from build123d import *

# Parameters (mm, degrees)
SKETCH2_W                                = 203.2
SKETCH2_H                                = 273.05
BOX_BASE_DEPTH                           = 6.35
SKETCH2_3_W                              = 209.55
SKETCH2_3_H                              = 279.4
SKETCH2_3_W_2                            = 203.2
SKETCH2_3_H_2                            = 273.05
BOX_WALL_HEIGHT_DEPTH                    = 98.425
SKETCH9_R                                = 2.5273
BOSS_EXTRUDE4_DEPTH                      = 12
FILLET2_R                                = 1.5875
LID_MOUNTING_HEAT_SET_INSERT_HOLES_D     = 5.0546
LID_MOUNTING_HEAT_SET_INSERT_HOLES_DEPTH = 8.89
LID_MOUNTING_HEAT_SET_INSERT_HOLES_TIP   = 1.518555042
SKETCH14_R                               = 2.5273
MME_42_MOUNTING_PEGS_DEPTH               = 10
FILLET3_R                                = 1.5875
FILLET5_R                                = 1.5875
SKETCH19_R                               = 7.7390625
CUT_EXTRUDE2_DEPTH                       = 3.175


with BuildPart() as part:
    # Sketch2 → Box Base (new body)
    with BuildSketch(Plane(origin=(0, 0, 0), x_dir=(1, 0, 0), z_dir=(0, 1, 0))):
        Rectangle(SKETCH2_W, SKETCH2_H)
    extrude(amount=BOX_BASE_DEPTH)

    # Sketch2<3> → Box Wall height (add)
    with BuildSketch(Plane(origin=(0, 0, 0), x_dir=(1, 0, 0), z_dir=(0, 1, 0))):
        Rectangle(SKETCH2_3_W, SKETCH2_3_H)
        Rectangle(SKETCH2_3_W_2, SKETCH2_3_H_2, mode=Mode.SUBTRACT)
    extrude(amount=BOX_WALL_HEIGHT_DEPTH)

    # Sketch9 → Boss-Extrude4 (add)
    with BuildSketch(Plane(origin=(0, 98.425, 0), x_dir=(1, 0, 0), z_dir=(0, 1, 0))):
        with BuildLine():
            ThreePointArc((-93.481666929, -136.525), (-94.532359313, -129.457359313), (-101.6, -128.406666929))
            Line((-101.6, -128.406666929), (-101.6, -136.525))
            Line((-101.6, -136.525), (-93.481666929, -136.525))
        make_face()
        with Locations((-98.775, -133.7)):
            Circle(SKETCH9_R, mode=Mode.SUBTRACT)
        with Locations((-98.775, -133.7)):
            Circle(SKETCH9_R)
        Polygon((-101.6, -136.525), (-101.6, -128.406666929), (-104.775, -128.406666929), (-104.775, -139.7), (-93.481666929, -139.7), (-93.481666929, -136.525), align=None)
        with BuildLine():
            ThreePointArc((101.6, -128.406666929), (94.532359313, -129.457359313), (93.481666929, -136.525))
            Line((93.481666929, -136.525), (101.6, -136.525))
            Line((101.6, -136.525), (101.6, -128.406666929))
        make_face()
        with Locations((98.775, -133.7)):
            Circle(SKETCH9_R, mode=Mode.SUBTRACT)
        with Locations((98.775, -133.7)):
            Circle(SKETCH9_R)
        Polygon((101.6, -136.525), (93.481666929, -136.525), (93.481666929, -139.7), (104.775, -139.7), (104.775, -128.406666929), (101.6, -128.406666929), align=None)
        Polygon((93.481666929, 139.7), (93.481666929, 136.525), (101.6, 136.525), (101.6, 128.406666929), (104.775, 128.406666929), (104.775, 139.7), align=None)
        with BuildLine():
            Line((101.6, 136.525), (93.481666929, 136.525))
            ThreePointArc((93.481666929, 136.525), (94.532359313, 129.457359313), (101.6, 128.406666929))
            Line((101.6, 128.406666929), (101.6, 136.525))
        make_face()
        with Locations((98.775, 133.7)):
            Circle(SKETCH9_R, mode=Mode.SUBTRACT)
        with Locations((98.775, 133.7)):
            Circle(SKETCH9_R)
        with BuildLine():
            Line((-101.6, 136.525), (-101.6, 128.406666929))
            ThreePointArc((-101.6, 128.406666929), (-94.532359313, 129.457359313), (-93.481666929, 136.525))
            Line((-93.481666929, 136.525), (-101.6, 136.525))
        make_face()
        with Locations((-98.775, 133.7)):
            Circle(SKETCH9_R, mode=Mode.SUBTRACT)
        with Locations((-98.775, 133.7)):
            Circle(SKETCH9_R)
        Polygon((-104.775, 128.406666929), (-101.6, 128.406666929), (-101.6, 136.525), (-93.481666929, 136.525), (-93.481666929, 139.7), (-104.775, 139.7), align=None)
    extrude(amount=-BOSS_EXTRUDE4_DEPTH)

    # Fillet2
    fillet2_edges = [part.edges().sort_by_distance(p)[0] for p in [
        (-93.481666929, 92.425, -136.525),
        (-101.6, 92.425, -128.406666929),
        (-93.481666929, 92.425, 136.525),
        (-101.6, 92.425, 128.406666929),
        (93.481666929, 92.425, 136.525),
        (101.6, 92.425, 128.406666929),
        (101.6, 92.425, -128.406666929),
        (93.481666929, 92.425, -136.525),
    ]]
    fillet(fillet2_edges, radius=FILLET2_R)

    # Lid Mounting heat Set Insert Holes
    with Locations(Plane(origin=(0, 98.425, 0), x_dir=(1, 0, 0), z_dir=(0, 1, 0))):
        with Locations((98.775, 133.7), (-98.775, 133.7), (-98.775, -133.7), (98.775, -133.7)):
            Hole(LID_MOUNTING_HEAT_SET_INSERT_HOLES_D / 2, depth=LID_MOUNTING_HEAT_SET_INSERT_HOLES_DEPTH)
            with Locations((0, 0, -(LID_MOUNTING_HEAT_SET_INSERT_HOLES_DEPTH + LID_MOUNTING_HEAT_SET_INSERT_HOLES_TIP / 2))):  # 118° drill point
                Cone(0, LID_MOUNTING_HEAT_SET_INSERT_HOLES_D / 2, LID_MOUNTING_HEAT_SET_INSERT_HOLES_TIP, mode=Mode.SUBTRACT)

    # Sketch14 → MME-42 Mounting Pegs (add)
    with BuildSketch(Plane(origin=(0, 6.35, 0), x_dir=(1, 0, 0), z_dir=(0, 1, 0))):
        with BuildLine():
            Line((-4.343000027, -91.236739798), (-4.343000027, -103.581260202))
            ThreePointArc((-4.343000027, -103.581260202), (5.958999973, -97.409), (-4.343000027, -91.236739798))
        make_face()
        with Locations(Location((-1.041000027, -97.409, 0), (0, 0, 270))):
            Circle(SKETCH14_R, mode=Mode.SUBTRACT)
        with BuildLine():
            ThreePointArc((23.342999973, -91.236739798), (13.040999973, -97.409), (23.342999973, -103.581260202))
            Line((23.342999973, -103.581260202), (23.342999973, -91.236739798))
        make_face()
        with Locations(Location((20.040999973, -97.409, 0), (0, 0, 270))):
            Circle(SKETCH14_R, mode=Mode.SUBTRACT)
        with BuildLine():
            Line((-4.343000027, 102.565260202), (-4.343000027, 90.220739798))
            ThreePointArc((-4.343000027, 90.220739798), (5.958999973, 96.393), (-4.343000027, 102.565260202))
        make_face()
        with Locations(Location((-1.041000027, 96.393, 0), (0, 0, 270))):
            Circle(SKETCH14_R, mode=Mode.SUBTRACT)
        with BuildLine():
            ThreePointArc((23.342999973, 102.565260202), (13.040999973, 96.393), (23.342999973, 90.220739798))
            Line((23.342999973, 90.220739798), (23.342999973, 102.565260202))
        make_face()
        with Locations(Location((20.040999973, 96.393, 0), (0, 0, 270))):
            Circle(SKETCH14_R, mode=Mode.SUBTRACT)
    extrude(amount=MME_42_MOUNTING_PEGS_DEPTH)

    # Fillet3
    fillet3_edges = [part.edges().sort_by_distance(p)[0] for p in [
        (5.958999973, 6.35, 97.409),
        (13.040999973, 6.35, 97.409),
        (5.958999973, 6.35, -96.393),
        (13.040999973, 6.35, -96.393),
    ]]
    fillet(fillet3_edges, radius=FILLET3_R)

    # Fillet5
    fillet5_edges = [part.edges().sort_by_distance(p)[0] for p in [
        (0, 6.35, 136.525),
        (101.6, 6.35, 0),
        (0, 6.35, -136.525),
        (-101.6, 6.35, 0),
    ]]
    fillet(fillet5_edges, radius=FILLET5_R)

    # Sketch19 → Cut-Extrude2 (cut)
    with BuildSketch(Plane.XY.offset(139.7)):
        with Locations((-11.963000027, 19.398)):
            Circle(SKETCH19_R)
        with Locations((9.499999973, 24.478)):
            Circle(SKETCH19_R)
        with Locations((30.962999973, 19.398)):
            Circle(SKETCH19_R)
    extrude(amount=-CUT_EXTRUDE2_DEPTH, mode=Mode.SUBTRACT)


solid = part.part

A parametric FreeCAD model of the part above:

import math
import FreeCAD as App
import Part
import Sketcher
Q = App.Units.Quantity


def edges_at(feature, points):
    """Names of the edges that pass closest to the given points."""
    edges = feature.Shape.Edges
    near = lambda p: min(range(len(edges)), key=lambda i: edges[i].distToShape(Part.Vertex(*p))[0])
    return sorted({f"Edge{near(p) + 1}" for p in points})

doc = App.newDocument("Part")
body = doc.addObject("PartDesign::Body", "Body")

# Sketch on XZ plane
sketch1 = body.newObject("Sketcher::SketchObject", "Sketch")
sketch1.AttachmentSupport = (doc.getObject("XZ_Plane"), [""])
sketch1.MapMode = "FlatFace"
sketch1.addGeometry(Part.LineSegment(App.Vector(-101.6, -136.525, 0), App.Vector(-101.6, 136.525, 0)), False)
sketch1.addGeometry(Part.LineSegment(App.Vector(-101.6, 136.525, 0), App.Vector(101.6, 136.525, 0)), False)
sketch1.addGeometry(Part.LineSegment(App.Vector(101.6, 136.525, 0), App.Vector(101.6, -136.525, 0)), False)
sketch1.addGeometry(Part.LineSegment(App.Vector(101.6, -136.525, 0), App.Vector(-101.6, -136.525, 0)), False)
sketch1.addConstraint(Sketcher.Constraint("Coincident", 0, 2, 1, 1))
sketch1.addConstraint(Sketcher.Constraint("Coincident", 1, 2, 2, 1))
sketch1.addConstraint(Sketcher.Constraint("Coincident", 2, 2, 3, 1))
sketch1.addConstraint(Sketcher.Constraint("Coincident", 3, 2, 0, 1))
sketch1.addConstraint(Sketcher.Constraint("Vertical", 0))
sketch1.addConstraint(Sketcher.Constraint("Horizontal", 1))
sketch1.addConstraint(Sketcher.Constraint("Vertical", 2))
sketch1.addConstraint(Sketcher.Constraint("Horizontal", 3))
sketch1.addConstraint(Sketcher.Constraint("Symmetric", 0, 2, 2, 2, -1, 1))
sketch1.addConstraint(Sketcher.Constraint("DistanceX", 1, 1, 1, 2, Q("8 in")))
sketch1.addConstraint(Sketcher.Constraint("DistanceY", 0, 1, 0, 2, Q("10.75 in")))
pad1 = body.newObject("PartDesign::Pad", "Pad")
pad1.Profile = sketch1
pad1.Length = Q("0.25 in")
pad1.Reversed = True

# Sketch on XZ plane
sketch2 = body.newObject("Sketcher::SketchObject", "Sketch001")
sketch2.AttachmentSupport = (doc.getObject("XZ_Plane"), [""])
sketch2.MapMode = "FlatFace"
sketch2.addGeometry(Part.LineSegment(App.Vector(-104.775, -139.7, 0), App.Vector(-104.775, 139.7, 0)), False)
sketch2.addGeometry(Part.LineSegment(App.Vector(-104.775, 139.7, 0), App.Vector(104.775, 139.7, 0)), False)
sketch2.addGeometry(Part.LineSegment(App.Vector(104.775, 139.7, 0), App.Vector(104.775, -139.7, 0)), False)
sketch2.addGeometry(Part.LineSegment(App.Vector(104.775, -139.7, 0), App.Vector(-104.775, -139.7, 0)), False)
sketch2.addGeometry(Part.LineSegment(App.Vector(101.6, 136.525, 0), App.Vector(-101.6, 136.525, 0)), False)
sketch2.addGeometry(Part.LineSegment(App.Vector(-101.6, 136.525, 0), App.Vector(-101.6, -136.525, 0)), False)
sketch2.addGeometry(Part.LineSegment(App.Vector(-101.6, -136.525, 0), App.Vector(101.6, -136.525, 0)), False)
sketch2.addGeometry(Part.LineSegment(App.Vector(101.6, -136.525, 0), App.Vector(101.6, 136.525, 0)), False)
sketch2.addConstraint(Sketcher.Constraint("Coincident", 0, 2, 1, 1))
sketch2.addConstraint(Sketcher.Constraint("Coincident", 1, 2, 2, 1))
sketch2.addConstraint(Sketcher.Constraint("Coincident", 2, 2, 3, 1))
sketch2.addConstraint(Sketcher.Constraint("Coincident", 3, 2, 0, 1))
sketch2.addConstraint(Sketcher.Constraint("Coincident", 4, 2, 5, 1))
sketch2.addConstraint(Sketcher.Constraint("Coincident", 5, 2, 6, 1))
sketch2.addConstraint(Sketcher.Constraint("Coincident", 6, 2, 7, 1))
sketch2.addConstraint(Sketcher.Constraint("Coincident", 7, 2, 4, 1))
sketch2.addConstraint(Sketcher.Constraint("Vertical", 0))
sketch2.addConstraint(Sketcher.Constraint("Horizontal", 1))
sketch2.addConstraint(Sketcher.Constraint("Vertical", 2))
sketch2.addConstraint(Sketcher.Constraint("Horizontal", 3))
sketch2.addConstraint(Sketcher.Constraint("Horizontal", 4))
sketch2.addConstraint(Sketcher.Constraint("Vertical", 5))
sketch2.addConstraint(Sketcher.Constraint("Horizontal", 6))
sketch2.addConstraint(Sketcher.Constraint("Vertical", 7))
sketch2.addConstraint(Sketcher.Constraint("Symmetric", 0, 2, 2, 2, -1, 1))
sketch2.addConstraint(Sketcher.Constraint("Symmetric", 4, 2, 6, 2, -1, 1))
sketch2.addConstraint(Sketcher.Constraint("DistanceX", 4, 2, 4, 1, Q("8 in")))
sketch2.addConstraint(Sketcher.Constraint("DistanceY", 0, 1, 0, 2, Q("11 in")))
sketch2.addConstraint(Sketcher.Constraint("DistanceX", 1, 1, 1, 2, Q("8.25 in")))
sketch2.addConstraint(Sketcher.Constraint("DistanceY", 5, 2, 5, 1, Q("10.75 in")))
pad2 = body.newObject("PartDesign::Pad", "Pad001")
pad2.Profile = sketch2
pad2.Length = Q("3.875 in")
pad2.Reversed = True

# Sketch on XZ plane
sketch3 = body.newObject("Sketcher::SketchObject", "Sketch002")
sketch3.AttachmentSupport = (doc.getObject("XZ_Plane"), [""])
sketch3.MapMode = "FlatFace"
sketch3.AttachmentOffset = App.Placement(App.Vector(0, 0, -3.875 * 25.4), App.Rotation())
sketch3.addGeometry(Part.ArcOfCircle(Part.Circle(App.Vector(-98.775, 133.7, 0), App.Vector(0, 0, 1), 6), math.radians(-118.088404), math.radians(28.088404)), False)
sketch3.addGeometry(Part.LineSegment(App.Vector(-101.6, 128.406667, 0), App.Vector(-104.775, 128.406667, 0)), False)
sketch3.addGeometry(Part.LineSegment(App.Vector(-104.775, 128.406667, 0), App.Vector(-104.775, 139.7, 0)), False)
sketch3.addGeometry(Part.LineSegment(App.Vector(-104.775, 139.7, 0), App.Vector(-93.481667, 139.7, 0)), False)
sketch3.addGeometry(Part.LineSegment(App.Vector(-93.481667, 139.7, 0), App.Vector(-93.481667, 136.525, 0)), False)
sketch3.addGeometry(Part.ArcOfCircle(Part.Circle(App.Vector(98.775, 133.7, 0), App.Vector(0, 0, 1), 6), math.radians(151.911596), math.radians(298.088404)), False)
sketch3.addGeometry(Part.LineSegment(App.Vector(93.481667, 136.525, 0), App.Vector(93.481667, 139.7, 0)), False)
sketch3.addGeometry(Part.LineSegment(App.Vector(93.481667, 139.7, 0), App.Vector(104.775, 139.7, 0)), False)
sketch3.addGeometry(Part.LineSegment(App.Vector(104.775, 139.7, 0), App.Vector(104.775, 128.406667, 0)), False)
sketch3.addGeometry(Part.LineSegment(App.Vector(104.775, 128.406667, 0), App.Vector(101.6, 128.406667, 0)), False)
sketch3.addGeometry(Part.LineSegment(App.Vector(93.481667, -139.7, 0), App.Vector(93.481667, -136.525, 0)), False)
sketch3.addGeometry(Part.ArcOfCircle(Part.Circle(App.Vector(98.775, -133.7, 0), App.Vector(0, 0, 1), 6), math.radians(61.911596), math.radians(208.088404)), False)
sketch3.addGeometry(Part.LineSegment(App.Vector(101.6, -128.406667, 0), App.Vector(104.775, -128.406667, 0)), False)
sketch3.addGeometry(Part.LineSegment(App.Vector(104.775, -128.406667, 0), App.Vector(104.775, -139.7, 0)), False)
sketch3.addGeometry(Part.LineSegment(App.Vector(104.775, -139.7, 0), App.Vector(93.481667, -139.7, 0)), False)
sketch3.addGeometry(Part.ArcOfCircle(Part.Circle(App.Vector(-98.775, -133.7, 0), App.Vector(0, 0, 1), 6), math.radians(-28.088404), math.radians(118.088404)), False)
sketch3.addGeometry(Part.LineSegment(App.Vector(-93.481667, -136.525, 0), App.Vector(-93.481667, -139.7, 0)), False)
sketch3.addGeometry(Part.LineSegment(App.Vector(-93.481667, -139.7, 0), App.Vector(-104.775, -139.7, 0)), False)
sketch3.addGeometry(Part.LineSegment(App.Vector(-104.775, -139.7, 0), App.Vector(-104.775, -128.406667, 0)), False)
sketch3.addGeometry(Part.LineSegment(App.Vector(-104.775, -128.406667, 0), App.Vector(-101.6, -128.406667, 0)), False)
sketch3.addConstraint(Sketcher.Constraint("Coincident", 0, 1, 1, 1))
sketch3.addConstraint(Sketcher.Constraint("Coincident", 1, 2, 2, 1))
sketch3.addConstraint(Sketcher.Constraint("Coincident", 2, 2, 3, 1))
sketch3.addConstraint(Sketcher.Constraint("Coincident", 3, 2, 4, 1))
sketch3.addConstraint(Sketcher.Constraint("Coincident", 4, 2, 0, 2))
sketch3.addConstraint(Sketcher.Constraint("Coincident", 5, 1, 6, 1))
sketch3.addConstraint(Sketcher.Constraint("Coincident", 6, 2, 7, 1))
sketch3.addConstraint(Sketcher.Constraint("Coincident", 7, 2, 8, 1))
sketch3.addConstraint(Sketcher.Constraint("Coincident", 8, 2, 9, 1))
sketch3.addConstraint(Sketcher.Constraint("Coincident", 9, 2, 5, 2))
sketch3.addConstraint(Sketcher.Constraint("Coincident", 10, 2, 11, 2))
sketch3.addConstraint(Sketcher.Constraint("Coincident", 11, 1, 12, 1))
sketch3.addConstraint(Sketcher.Constraint("Coincident", 12, 2, 13, 1))
sketch3.addConstraint(Sketcher.Constraint("Coincident", 13, 2, 14, 1))
sketch3.addConstraint(Sketcher.Constraint("Coincident", 14, 2, 10, 1))
sketch3.addConstraint(Sketcher.Constraint("Coincident", 15, 1, 16, 1))
sketch3.addConstraint(Sketcher.Constraint("Coincident", 16, 2, 17, 1))
sketch3.addConstraint(Sketcher.Constraint("Coincident", 17, 2, 18, 1))
sketch3.addConstraint(Sketcher.Constraint("Coincident", 18, 2, 19, 1))
sketch3.addConstraint(Sketcher.Constraint("Coincident", 19, 2, 15, 2))
sketch3.addConstraint(Sketcher.Constraint("Horizontal", 1))
sketch3.addConstraint(Sketcher.Constraint("Vertical", 2))
sketch3.addConstraint(Sketcher.Constraint("Horizontal", 3))
sketch3.addConstraint(Sketcher.Constraint("Vertical", 4))
sketch3.addConstraint(Sketcher.Constraint("Vertical", 6))
sketch3.addConstraint(Sketcher.Constraint("Horizontal", 7))
sketch3.addConstraint(Sketcher.Constraint("Vertical", 8))
sketch3.addConstraint(Sketcher.Constraint("Horizontal", 9))
sketch3.addConstraint(Sketcher.Constraint("Vertical", 10))
sketch3.addConstraint(Sketcher.Constraint("Horizontal", 12))
sketch3.addConstraint(Sketcher.Constraint("Vertical", 13))
sketch3.addConstraint(Sketcher.Constraint("Horizontal", 14))
sketch3.addConstraint(Sketcher.Constraint("Vertical", 16))
sketch3.addConstraint(Sketcher.Constraint("Horizontal", 17))
sketch3.addConstraint(Sketcher.Constraint("Vertical", 18))
sketch3.addConstraint(Sketcher.Constraint("Horizontal", 19))
sketch3.addConstraint(Sketcher.Constraint("Equal", 0, 5))
sketch3.addConstraint(Sketcher.Constraint("Equal", 5, 11))
sketch3.addConstraint(Sketcher.Constraint("Equal", 11, 15))
sketch3.addConstraint(Sketcher.Constraint("Symmetric", 0, 3, 11, 3, -1, 1))
sketch3.addConstraint(Sketcher.Constraint("Symmetric", 5, 3, 15, 3, -1, 1))
sketch3.addConstraint(Sketcher.Constraint("Symmetric", 1, 2, 12, 2, -1, 1))
sketch3.addConstraint(Sketcher.Constraint("Symmetric", 3, 2, 14, 2, -1, 1))
sketch3.addConstraint(Sketcher.Constraint("Symmetric", 6, 2, 16, 2, -1, 1))
sketch3.addConstraint(Sketcher.Constraint("Symmetric", 8, 2, 18, 2, -1, 1))
sketch3.addConstraint(Sketcher.Constraint("Symmetric", 0, 3, 5, 3, -2))
sketch3.addConstraint(Sketcher.Constraint("Symmetric", 3, 2, 6, 2, -2))
sketch3.addConstraint(Sketcher.Constraint("Symmetric", 1, 2, 8, 2, -2))
sketch3.addConstraint(Sketcher.Constraint("Equal", 17, 2))
sketch3.addConstraint(Sketcher.Constraint("Equal", 19, 4))
sketch3.addConstraint(Sketcher.Constraint("DistanceX", 0, 1, -1, 1, Q("4 in")))
sketch3.addConstraint(Sketcher.Constraint("DistanceY", -1, 1, 2, 2, Q("5.5 in")))
sketch3.addConstraint(Sketcher.Constraint("DistanceX", 1, 2, 1, 1, Q("0.125 in")))
sketch3.addConstraint(Sketcher.Constraint("Radius", 0, Q("6 mm")))
sketch3.addConstraint(Sketcher.Constraint("DistanceX", 0, 3, -1, 1, Q("98.775 mm")))
pad3 = body.newObject("PartDesign::Pad", "Pad002")
pad3.Profile = sketch3
pad3.Length = 12
doc.recompute()

fillet = body.newObject("PartDesign::Fillet", "Fillet")
fillet.Base = (pad3, edges_at(pad3, [
    (-93.482, 92.425, -136.525),
    (-101.6, 92.425, -128.407),
    (-93.482, 92.425, 136.525),
    (-101.6, 92.425, 128.407),
    (93.482, 92.425, 136.525),
    (101.6, 92.425, 128.407),
    (101.6, 92.425, -128.407),
    (93.482, 92.425, -136.525),
]))
fillet.Radius = Q("0.0625 in")

# Sketch on XZ plane
sketch4 = body.newObject("Sketcher::SketchObject", "Sketch003")
sketch4.AttachmentSupport = (doc.getObject("XZ_Plane"), [""])
sketch4.MapMode = "FlatFace"
sketch4.AttachmentOffset = App.Placement(App.Vector(0, 0, -3.875 * 25.4), App.Rotation())
sketch4.addGeometry(Part.Circle(App.Vector(98.775, -133.7, 0), App.Vector(0, 0, 1), 2.5273), False)
sketch4.addGeometry(Part.Circle(App.Vector(-98.775, -133.7, 0), App.Vector(0, 0, 1), 2.5273), False)
sketch4.addGeometry(Part.Circle(App.Vector(-98.775, 133.7, 0), App.Vector(0, 0, 1), 2.5273), False)
sketch4.addGeometry(Part.Circle(App.Vector(98.775, 133.7, 0), App.Vector(0, 0, 1), 2.5273), False)
sketch4.addConstraint(Sketcher.Constraint("Equal", 0, 1))
sketch4.addConstraint(Sketcher.Constraint("Equal", 1, 2))
sketch4.addConstraint(Sketcher.Constraint("Equal", 2, 3))
sketch4.addConstraint(Sketcher.Constraint("Symmetric", 0, 3, 2, 3, -1, 1))
sketch4.addConstraint(Sketcher.Constraint("Symmetric", 1, 3, 3, 3, -1, 1))
sketch4.addConstraint(Sketcher.Constraint("Symmetric", 0, 3, 1, 3, -2))
sketch4.addConstraint(Sketcher.Constraint("Diameter", 0, Q("0.199 in")))
sketch4.addConstraint(Sketcher.Constraint("DistanceX", -1, 1, 0, 3, Q("98.775 mm")))
sketch4.addConstraint(Sketcher.Constraint("DistanceY", 0, 3, -1, 1, Q("133.7 mm")))
doc.recompute()
hole = body.newObject("PartDesign::Hole", "Hole")
hole.Profile = sketch4
hole.ThreadType = "None"
hole.Diameter = Q("0.199 in")
hole.DepthType = "Dimension"
hole.Depth = Q("0.35 in")
hole.DrillPoint = "Angled"
hole.DrillPointAngle = 118
hole.Reversed = True

# Sketch on XZ plane
sketch5 = body.newObject("Sketcher::SketchObject", "Sketch004")
sketch5.AttachmentSupport = (doc.getObject("XZ_Plane"), [""])
sketch5.MapMode = "FlatFace"
sketch5.AttachmentOffset = App.Placement(App.Vector(0, 0, -0.25 * 25.4), App.Rotation())
sketch5.addGeometry(Part.LineSegment(App.Vector(-4.343, 91.23674, 0), App.Vector(-4.343, 103.58126, 0)), False)
sketch5.addGeometry(Part.ArcOfCircle(Part.Circle(App.Vector(-1.041, 97.409, 0), App.Vector(0, 0, 1), 7), math.radians(-118.145632), math.radians(118.145632)), False)
sketch5.addGeometry(Part.Circle(App.Vector(-1.041, 97.409, 0), App.Vector(0, 0, 1), 2.5273), False)
sketch5.addGeometry(Part.ArcOfCircle(Part.Circle(App.Vector(20.041, 97.409, 0), App.Vector(0, 0, 1), 7), math.radians(61.854368), math.radians(298.145632)), False)
sketch5.addGeometry(Part.LineSegment(App.Vector(23.343, 103.58126, 0), App.Vector(23.343, 91.23674, 0)), False)
sketch5.addGeometry(Part.Circle(App.Vector(20.041, 97.409, 0), App.Vector(0, 0, 1), 2.5273), False)
sketch5.addGeometry(Part.LineSegment(App.Vector(-4.343, -102.56526, 0), App.Vector(-4.343, -90.22074, 0)), False)
sketch5.addGeometry(Part.ArcOfCircle(Part.Circle(App.Vector(-1.041, -96.393, 0), App.Vector(0, 0, 1), 7), math.radians(-118.145632), math.radians(118.145632)), False)
sketch5.addGeometry(Part.Circle(App.Vector(-1.041, -96.393, 0), App.Vector(0, 0, 1), 2.5273), False)
sketch5.addGeometry(Part.ArcOfCircle(Part.Circle(App.Vector(20.041, -96.393, 0), App.Vector(0, 0, 1), 7), math.radians(61.854368), math.radians(298.145632)), False)
sketch5.addGeometry(Part.LineSegment(App.Vector(23.343, -90.22074, 0), App.Vector(23.343, -102.56526, 0)), False)
sketch5.addGeometry(Part.Circle(App.Vector(20.041, -96.393, 0), App.Vector(0, 0, 1), 2.5273), False)
sketch5.addConstraint(Sketcher.Constraint("Coincident", 0, 1, 1, 1))
sketch5.addConstraint(Sketcher.Constraint("Coincident", 1, 2, 0, 2))
sketch5.addConstraint(Sketcher.Constraint("Coincident", 3, 1, 4, 1))
sketch5.addConstraint(Sketcher.Constraint("Coincident", 4, 2, 3, 2))
sketch5.addConstraint(Sketcher.Constraint("Coincident", 6, 1, 7, 1))
sketch5.addConstraint(Sketcher.Constraint("Coincident", 7, 2, 6, 2))
sketch5.addConstraint(Sketcher.Constraint("Coincident", 9, 1, 10, 1))
sketch5.addConstraint(Sketcher.Constraint("Coincident", 10, 2, 9, 2))
sketch5.addConstraint(Sketcher.Constraint("Vertical", 0))
sketch5.addConstraint(Sketcher.Constraint("Vertical", 4))
sketch5.addConstraint(Sketcher.Constraint("Vertical", 6))
sketch5.addConstraint(Sketcher.Constraint("Vertical", 10))
sketch5.addConstraint(Sketcher.Constraint("Coincident", 2, 3, 1, 3))
sketch5.addConstraint(Sketcher.Constraint("Coincident", 5, 3, 3, 3))
sketch5.addConstraint(Sketcher.Constraint("Coincident", 8, 3, 7, 3))
sketch5.addConstraint(Sketcher.Constraint("Coincident", 11, 3, 9, 3))
sketch5.addConstraint(Sketcher.Constraint("Equal", 1, 3))
sketch5.addConstraint(Sketcher.Constraint("Equal", 2, 5))
sketch5.addConstraint(Sketcher.Constraint("Equal", 3, 7))
sketch5.addConstraint(Sketcher.Constraint("Equal", 5, 8))
sketch5.addConstraint(Sketcher.Constraint("Equal", 7, 9))
sketch5.addConstraint(Sketcher.Constraint("Equal", 8, 11))
sketch5.addConstraint(Sketcher.Constraint("Horizontal", 2, 3, 3, 3))
sketch5.addConstraint(Sketcher.Constraint("Horizontal", 8, 3, 9, 3))
sketch5.addConstraint(Sketcher.Constraint("Horizontal", 1, 2, 3, 1))
sketch5.addConstraint(Sketcher.Constraint("Horizontal", 7, 2, 9, 1))
sketch5.addConstraint(Sketcher.Constraint("Vertical", 2, 3, 7, 3))
sketch5.addConstraint(Sketcher.Constraint("Vertical", 5, 3, 9, 3))
sketch5.addConstraint(Sketcher.Constraint("Vertical", 1, 2, 6, 1))
sketch5.addConstraint(Sketcher.Constraint("Diameter", 2, Q("0.199 in")))
sketch5.addConstraint(Sketcher.Constraint("Radius", 1, Q("7 mm")))
sketch5.addConstraint(Sketcher.Constraint("DistanceX", 1, 3, 3, 3, Q("0.83 in")))
sketch5.addConstraint(Sketcher.Constraint("DistanceY", 7, 3, 1, 3, Q("7.63 in")))
sketch5.addConstraint(Sketcher.Constraint("DistanceX", 0, 1, 1, 3, Q("0.13 in")))
sketch5.addConstraint(Sketcher.Constraint("DistanceY", -1, 1, 1, 3, Q("3.835 in")))
sketch5.addConstraint(Sketcher.Constraint("DistanceX", 1, 3, -1, 1, Q("1.041 mm")))
pad4 = body.newObject("PartDesign::Pad", "Pad003")
pad4.Profile = sketch5
pad4.Length = 10
pad4.Reversed = True
doc.recompute()

fillet2 = body.newObject("PartDesign::Fillet", "Fillet001")
fillet2.Base = (pad4, edges_at(pad4, [
    (5.959, 6.35, 97.409),
    (13.041, 6.35, 97.409),
    (5.959, 6.35, -96.393),
    (13.041, 6.35, -96.393),
]))
fillet2.Radius = Q("0.0625 in")
doc.recompute()

fillet3 = body.newObject("PartDesign::Fillet", "Fillet002")
fillet3.Base = (fillet2, edges_at(fillet2, [
    (0, 6.35, 136.525),
    (101.6, 6.35, 0),
    (0, 6.35, -136.525),
    (-101.6, 6.35, 0),
]))
fillet3.Radius = Q("0.0625 in")

# Sketch on XY plane
sketch6 = body.newObject("Sketcher::SketchObject", "Sketch005")
sketch6.AttachmentSupport = (doc.getObject("XY_Plane"), [""])
sketch6.MapMode = "FlatFace"
sketch6.AttachmentOffset = App.Placement(App.Vector(0, 0, 5.5 * 25.4), App.Rotation())
sketch6.addGeometry(Part.Circle(App.Vector(-11.963, 19.398, 0), App.Vector(0, 0, 1), 7.739063), False)
sketch6.addGeometry(Part.Circle(App.Vector(9.5, 24.478, 0), App.Vector(0, 0, 1), 7.739063), False)
sketch6.addGeometry(Part.Circle(App.Vector(30.963, 19.398, 0), App.Vector(0, 0, 1), 7.739063), False)
sketch6.addConstraint(Sketcher.Constraint("Equal", 0, 1))
sketch6.addConstraint(Sketcher.Constraint("Equal", 1, 2))
sketch6.addConstraint(Sketcher.Constraint("Horizontal", 0, 3, 2, 3))
sketch6.addConstraint(Sketcher.Constraint("Diameter", 0, Q("0.609375 in")))
sketch6.addConstraint(Sketcher.Constraint("DistanceY", 0, 3, 1, 3, Q("0.2 in")))
sketch6.addConstraint(Sketcher.Constraint("DistanceX", 0, 3, 2, 3, Q("1.69 in")))
sketch6.addConstraint(Sketcher.Constraint("DistanceX", 0, 3, 1, 3, Q("0.845 in")))
sketch6.addConstraint(Sketcher.Constraint("DistanceX", 0, 3, -1, 1, Q("11.963 mm")))
sketch6.addConstraint(Sketcher.Constraint("DistanceY", -1, 1, 0, 3, Q("19.398 mm")))
pocket1 = body.newObject("PartDesign::Pocket", "Pocket")
pocket1.Profile = sketch6
pocket1.Length = Q("0.125 in")

doc.recompute()
